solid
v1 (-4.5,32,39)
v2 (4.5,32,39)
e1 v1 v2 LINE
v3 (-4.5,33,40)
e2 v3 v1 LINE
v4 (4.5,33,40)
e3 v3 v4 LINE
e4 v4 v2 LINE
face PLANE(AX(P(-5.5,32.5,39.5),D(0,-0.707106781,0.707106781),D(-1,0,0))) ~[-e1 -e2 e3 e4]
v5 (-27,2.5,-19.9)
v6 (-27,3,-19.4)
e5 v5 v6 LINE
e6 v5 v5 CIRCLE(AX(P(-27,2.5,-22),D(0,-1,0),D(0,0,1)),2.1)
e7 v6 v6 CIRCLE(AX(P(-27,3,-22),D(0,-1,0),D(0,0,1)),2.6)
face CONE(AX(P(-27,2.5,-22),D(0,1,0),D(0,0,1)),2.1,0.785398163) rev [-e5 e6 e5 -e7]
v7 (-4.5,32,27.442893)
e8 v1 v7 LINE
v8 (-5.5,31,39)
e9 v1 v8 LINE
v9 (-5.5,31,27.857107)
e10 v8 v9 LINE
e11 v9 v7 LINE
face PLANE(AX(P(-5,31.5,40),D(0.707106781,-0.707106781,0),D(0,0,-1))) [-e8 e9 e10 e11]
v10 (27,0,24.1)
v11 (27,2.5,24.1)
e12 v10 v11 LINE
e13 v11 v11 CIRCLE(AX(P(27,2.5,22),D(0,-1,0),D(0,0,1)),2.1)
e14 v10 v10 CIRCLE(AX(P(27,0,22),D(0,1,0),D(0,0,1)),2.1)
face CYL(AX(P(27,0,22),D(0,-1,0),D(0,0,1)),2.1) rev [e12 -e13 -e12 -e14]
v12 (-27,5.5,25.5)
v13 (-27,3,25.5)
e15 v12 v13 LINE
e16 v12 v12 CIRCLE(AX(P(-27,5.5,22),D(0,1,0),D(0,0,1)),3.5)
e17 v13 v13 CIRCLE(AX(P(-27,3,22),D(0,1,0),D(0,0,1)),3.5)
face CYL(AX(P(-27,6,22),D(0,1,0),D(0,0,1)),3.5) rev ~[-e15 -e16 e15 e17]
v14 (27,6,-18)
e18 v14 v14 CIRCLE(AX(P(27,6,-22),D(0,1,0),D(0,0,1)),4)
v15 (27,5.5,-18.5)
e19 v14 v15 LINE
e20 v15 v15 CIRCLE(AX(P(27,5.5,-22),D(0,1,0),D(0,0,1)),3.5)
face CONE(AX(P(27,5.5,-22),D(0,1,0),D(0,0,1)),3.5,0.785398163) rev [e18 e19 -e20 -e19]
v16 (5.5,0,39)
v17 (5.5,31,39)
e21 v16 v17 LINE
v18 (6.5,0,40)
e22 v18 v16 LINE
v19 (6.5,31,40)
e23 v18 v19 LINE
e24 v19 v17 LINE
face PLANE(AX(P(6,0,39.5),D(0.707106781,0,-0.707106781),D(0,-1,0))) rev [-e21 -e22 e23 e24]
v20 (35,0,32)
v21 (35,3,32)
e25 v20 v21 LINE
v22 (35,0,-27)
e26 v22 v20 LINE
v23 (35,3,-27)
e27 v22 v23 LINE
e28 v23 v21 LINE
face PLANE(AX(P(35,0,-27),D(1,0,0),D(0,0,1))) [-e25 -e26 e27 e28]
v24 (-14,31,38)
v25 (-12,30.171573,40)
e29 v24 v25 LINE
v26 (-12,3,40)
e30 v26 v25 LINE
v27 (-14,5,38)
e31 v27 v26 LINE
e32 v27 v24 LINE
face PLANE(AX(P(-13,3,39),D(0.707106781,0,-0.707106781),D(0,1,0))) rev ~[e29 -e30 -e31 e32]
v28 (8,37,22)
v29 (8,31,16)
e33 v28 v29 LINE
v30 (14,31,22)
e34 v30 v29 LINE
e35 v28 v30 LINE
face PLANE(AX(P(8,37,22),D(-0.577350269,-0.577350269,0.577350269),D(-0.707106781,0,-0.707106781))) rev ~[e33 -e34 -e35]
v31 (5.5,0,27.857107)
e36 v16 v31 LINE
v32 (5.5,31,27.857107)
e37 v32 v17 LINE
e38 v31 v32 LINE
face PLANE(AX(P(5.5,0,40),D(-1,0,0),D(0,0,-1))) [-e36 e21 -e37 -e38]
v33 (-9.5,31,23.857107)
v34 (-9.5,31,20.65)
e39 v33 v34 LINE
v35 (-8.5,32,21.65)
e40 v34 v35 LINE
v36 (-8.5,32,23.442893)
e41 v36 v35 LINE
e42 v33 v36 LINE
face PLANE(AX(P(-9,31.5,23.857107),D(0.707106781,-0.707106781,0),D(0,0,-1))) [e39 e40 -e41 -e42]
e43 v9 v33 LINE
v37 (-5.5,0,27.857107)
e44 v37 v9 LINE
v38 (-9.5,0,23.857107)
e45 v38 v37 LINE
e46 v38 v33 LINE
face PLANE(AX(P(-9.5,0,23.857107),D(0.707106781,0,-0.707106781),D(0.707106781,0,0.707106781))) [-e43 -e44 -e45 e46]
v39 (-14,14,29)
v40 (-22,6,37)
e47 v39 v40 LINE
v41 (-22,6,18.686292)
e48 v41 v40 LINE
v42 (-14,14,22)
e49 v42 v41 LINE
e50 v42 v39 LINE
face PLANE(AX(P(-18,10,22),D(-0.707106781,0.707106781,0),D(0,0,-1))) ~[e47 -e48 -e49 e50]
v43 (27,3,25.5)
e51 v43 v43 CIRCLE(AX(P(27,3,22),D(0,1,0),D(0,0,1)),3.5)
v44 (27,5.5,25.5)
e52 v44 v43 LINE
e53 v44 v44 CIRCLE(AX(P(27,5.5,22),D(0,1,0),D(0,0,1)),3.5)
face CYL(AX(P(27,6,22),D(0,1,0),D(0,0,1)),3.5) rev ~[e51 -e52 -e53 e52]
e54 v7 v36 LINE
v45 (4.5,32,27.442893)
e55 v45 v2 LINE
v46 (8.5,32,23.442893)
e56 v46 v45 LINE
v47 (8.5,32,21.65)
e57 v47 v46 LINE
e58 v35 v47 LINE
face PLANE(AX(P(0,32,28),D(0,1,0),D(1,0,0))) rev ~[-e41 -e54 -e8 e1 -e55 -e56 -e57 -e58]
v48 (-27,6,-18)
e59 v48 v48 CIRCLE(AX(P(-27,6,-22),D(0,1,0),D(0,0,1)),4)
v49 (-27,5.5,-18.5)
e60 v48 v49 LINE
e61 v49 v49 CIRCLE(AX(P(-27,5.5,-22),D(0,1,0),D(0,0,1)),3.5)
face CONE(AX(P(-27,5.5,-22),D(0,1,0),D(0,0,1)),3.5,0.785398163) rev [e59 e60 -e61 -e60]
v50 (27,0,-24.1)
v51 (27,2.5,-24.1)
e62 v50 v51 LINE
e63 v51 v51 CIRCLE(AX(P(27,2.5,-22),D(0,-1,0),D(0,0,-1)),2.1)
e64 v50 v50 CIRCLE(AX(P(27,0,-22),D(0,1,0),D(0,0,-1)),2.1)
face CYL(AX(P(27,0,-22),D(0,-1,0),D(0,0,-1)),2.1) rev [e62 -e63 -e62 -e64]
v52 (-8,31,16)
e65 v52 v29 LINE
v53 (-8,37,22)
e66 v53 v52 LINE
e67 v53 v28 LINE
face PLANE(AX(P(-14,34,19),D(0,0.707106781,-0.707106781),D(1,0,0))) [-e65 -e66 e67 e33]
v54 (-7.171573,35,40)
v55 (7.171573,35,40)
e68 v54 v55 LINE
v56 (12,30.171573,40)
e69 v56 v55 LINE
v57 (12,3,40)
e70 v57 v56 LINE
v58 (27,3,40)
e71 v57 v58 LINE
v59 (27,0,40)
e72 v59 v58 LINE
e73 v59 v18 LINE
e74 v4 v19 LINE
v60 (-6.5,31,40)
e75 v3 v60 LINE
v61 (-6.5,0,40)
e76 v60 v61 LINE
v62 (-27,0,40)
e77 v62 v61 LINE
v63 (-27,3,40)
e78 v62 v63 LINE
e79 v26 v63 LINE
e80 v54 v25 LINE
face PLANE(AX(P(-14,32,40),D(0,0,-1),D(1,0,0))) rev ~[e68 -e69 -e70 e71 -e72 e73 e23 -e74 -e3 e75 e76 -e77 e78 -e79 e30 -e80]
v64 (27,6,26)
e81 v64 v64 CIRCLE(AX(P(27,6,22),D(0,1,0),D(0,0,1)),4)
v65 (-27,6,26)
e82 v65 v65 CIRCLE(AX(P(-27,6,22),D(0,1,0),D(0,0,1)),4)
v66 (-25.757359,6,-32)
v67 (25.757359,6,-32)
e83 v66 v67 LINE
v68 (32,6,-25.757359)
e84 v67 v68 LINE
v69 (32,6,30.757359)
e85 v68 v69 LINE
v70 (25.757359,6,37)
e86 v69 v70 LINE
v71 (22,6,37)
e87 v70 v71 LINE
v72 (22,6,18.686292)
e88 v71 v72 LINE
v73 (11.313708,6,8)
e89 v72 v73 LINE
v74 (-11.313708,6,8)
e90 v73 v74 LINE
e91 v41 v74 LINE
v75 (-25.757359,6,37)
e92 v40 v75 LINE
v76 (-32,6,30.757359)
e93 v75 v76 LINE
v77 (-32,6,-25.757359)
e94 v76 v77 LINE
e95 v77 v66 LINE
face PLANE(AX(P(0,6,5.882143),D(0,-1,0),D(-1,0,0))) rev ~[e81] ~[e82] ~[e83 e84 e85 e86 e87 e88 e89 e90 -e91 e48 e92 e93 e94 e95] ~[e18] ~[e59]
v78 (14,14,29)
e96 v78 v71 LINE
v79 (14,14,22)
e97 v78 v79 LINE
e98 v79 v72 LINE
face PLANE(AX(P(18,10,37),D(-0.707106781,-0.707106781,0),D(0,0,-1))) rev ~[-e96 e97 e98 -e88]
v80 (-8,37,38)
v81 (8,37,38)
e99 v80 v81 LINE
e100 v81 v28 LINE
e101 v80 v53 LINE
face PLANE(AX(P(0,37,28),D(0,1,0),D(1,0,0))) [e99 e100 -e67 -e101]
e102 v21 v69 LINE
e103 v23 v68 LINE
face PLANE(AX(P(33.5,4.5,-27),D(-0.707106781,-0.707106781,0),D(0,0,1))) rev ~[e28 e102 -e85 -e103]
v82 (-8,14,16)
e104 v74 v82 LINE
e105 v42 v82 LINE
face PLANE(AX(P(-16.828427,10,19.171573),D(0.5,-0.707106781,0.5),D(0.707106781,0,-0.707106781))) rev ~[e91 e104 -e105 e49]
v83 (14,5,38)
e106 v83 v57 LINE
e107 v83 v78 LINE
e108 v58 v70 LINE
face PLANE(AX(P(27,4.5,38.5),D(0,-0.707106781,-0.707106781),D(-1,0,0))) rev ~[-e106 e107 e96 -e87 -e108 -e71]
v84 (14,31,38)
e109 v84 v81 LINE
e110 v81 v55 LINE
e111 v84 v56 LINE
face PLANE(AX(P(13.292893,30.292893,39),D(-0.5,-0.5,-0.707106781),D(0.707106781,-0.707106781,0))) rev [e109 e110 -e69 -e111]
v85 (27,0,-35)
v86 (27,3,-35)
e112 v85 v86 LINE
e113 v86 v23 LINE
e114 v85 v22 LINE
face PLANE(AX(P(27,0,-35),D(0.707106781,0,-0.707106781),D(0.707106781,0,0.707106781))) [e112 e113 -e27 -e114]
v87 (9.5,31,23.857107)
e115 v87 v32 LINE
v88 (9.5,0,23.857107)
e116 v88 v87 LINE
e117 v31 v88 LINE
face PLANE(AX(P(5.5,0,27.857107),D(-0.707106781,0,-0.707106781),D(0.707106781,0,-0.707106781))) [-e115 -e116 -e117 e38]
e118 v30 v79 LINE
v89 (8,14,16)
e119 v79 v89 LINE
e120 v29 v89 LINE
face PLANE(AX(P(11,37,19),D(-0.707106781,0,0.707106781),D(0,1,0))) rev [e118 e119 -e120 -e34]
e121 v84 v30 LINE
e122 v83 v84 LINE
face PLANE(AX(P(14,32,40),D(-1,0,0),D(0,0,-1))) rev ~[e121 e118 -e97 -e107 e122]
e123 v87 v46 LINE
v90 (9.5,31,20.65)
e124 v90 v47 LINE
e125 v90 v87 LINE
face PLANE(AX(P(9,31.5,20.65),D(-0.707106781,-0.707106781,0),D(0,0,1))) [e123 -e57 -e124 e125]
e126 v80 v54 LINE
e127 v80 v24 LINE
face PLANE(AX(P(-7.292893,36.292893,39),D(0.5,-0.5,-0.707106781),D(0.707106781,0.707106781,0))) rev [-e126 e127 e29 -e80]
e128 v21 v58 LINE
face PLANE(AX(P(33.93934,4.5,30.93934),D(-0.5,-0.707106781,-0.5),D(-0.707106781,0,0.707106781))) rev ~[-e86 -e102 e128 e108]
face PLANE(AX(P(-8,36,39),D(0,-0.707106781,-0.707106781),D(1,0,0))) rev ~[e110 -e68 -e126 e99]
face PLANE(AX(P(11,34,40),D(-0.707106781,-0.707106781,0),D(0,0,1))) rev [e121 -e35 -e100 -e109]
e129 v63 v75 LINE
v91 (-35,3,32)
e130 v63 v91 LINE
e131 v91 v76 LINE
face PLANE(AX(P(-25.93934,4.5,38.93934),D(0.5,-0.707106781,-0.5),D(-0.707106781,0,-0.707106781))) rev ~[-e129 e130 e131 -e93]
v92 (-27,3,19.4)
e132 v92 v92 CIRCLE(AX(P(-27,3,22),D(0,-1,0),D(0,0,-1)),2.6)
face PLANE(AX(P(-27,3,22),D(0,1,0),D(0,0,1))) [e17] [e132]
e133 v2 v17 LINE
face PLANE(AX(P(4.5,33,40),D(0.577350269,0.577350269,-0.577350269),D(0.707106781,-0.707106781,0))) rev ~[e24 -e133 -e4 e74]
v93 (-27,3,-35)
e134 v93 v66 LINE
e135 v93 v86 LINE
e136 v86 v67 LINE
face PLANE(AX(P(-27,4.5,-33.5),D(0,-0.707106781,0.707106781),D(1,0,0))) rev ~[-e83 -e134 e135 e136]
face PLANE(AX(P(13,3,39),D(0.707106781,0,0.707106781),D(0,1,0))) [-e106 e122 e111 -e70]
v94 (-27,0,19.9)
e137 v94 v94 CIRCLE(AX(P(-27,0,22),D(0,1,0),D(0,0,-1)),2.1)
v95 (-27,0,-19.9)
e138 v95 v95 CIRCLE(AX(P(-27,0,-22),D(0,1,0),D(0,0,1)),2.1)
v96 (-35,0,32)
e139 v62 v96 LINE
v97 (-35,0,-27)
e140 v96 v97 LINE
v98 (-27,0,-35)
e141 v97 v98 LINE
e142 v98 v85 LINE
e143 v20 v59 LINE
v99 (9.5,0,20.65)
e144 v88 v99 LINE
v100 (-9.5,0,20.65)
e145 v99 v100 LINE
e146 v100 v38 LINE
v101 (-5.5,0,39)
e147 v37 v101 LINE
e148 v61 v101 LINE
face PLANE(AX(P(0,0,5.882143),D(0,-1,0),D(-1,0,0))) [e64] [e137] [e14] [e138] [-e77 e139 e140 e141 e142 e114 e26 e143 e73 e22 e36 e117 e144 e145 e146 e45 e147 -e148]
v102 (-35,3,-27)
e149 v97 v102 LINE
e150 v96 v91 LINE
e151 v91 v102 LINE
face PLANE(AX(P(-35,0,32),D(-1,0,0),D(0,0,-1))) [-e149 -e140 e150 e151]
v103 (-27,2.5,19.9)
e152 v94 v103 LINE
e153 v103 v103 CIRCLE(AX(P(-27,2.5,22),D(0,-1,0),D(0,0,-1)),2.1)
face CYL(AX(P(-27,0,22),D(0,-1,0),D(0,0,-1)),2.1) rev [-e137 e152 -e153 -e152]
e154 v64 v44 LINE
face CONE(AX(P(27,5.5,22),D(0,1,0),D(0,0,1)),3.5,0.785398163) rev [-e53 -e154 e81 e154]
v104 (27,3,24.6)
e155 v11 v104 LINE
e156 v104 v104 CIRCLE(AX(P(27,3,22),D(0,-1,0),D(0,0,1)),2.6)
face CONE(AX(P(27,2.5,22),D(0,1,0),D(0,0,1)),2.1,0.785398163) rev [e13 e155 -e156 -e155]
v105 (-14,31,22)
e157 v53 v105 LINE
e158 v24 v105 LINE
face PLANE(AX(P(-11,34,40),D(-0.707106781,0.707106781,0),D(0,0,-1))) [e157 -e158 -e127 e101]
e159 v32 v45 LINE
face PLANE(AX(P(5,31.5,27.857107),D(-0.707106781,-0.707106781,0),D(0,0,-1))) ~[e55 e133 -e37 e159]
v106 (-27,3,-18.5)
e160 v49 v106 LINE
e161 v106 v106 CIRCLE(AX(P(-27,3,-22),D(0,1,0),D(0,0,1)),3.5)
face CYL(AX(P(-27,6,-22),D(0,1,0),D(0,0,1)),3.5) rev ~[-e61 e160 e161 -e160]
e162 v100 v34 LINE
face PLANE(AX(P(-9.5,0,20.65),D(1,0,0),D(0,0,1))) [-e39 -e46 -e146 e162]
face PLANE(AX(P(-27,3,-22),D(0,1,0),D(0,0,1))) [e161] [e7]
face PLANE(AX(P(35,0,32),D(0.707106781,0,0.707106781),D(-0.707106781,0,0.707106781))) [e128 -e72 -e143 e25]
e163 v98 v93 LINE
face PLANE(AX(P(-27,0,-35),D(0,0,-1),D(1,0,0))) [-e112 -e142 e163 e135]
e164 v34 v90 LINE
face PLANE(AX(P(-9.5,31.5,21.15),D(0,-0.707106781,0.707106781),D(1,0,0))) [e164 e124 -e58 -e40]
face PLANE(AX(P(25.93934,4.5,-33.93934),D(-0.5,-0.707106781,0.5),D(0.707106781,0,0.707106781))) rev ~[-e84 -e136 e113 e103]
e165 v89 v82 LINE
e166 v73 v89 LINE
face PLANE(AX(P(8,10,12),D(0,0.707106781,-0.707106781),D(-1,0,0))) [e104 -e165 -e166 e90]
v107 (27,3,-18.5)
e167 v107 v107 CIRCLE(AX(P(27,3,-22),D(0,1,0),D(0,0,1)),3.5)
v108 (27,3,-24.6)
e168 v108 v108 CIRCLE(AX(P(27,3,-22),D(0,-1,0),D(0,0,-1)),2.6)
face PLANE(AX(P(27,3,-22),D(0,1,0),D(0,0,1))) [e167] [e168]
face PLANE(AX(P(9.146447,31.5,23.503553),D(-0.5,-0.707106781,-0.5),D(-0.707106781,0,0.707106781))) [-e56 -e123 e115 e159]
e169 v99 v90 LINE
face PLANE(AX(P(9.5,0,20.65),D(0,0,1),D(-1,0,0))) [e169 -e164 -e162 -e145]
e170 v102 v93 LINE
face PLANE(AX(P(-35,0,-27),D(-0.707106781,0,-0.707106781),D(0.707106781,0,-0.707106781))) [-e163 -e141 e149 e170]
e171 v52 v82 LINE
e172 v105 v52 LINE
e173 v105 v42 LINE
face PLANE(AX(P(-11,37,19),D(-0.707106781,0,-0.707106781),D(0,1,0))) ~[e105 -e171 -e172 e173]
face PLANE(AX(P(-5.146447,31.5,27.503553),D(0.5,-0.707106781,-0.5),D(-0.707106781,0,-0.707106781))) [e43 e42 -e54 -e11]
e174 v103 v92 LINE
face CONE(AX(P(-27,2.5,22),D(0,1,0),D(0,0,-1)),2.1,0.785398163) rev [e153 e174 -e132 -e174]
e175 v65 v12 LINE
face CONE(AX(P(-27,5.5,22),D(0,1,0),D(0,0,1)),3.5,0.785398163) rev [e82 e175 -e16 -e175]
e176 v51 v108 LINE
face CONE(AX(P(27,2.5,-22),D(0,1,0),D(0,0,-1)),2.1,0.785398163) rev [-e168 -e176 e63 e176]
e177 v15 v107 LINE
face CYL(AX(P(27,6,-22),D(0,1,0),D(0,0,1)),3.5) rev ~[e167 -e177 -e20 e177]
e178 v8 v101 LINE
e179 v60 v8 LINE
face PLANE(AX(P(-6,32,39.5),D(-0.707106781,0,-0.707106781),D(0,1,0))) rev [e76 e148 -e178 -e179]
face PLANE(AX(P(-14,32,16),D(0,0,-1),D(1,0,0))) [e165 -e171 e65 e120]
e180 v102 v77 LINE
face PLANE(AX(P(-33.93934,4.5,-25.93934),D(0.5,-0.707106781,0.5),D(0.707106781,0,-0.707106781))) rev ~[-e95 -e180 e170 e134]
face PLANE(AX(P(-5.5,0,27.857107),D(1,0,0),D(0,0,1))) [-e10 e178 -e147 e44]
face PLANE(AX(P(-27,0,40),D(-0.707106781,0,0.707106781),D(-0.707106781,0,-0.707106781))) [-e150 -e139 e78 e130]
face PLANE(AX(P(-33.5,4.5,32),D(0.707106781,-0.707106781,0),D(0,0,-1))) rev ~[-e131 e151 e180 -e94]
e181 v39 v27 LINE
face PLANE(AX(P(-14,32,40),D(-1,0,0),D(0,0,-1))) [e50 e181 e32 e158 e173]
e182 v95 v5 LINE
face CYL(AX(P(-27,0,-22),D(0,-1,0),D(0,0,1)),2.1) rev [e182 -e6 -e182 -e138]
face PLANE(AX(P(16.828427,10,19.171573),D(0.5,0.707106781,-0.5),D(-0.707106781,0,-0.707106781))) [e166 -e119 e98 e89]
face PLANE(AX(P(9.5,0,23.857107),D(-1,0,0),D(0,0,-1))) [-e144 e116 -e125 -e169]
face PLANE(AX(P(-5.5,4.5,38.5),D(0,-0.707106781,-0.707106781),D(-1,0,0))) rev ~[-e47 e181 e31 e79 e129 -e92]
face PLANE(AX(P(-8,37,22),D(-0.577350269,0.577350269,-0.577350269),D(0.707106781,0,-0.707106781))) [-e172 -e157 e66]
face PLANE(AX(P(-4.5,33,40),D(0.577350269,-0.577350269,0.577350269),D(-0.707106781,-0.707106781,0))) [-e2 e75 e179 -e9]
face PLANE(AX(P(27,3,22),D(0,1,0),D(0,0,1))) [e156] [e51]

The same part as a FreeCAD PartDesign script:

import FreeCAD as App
import Part
import Sketcher


def edges_at(feature, points):
    """Names of the edges that pass closest to the given points."""
    edges = feature.Shape.Edges
    near = lambda p: min(range(len(edges)), key=lambda i: edges[i].distToShape(Part.Vertex(*p))[0])
    return sorted({f"Edge{near(p) + 1}" for p in points})


def add_polygon(sketch, points):
    """Adds a closed chain of lines whose ends are joined by coincident constraints."""
    first, n = sketch.GeometryCount, len(points)
    for a, b in zip(points, points[1:] + points[:1]):
        sketch.addGeometry(Part.LineSegment(App.Vector(*a, 0), App.Vector(*b, 0)), False)
    for i in range(n):
        sketch.addConstraint(Sketcher.Constraint("Coincident", first + i, 2, first + (i + 1) % n, 1))

doc = App.newDocument("Part")
body = doc.addObject("PartDesign::Body", "Body")

sketch1 = body.newObject("Sketcher::SketchObject", "Sketch")
sketch1.AttachmentSupport = (doc.getObject("XZ_Plane"), [""])
sketch1.MapMode = "FlatFace"
add_polygon(sketch1, [(-27, -35), (-35, -27), (-35, 32), (-27, 40), (-5.5, 40), (-5.5, 27.857107), (-9.5, 23.857107), (-9.5, 20.65), (9.5, 20.65), (9.5, 23.857107), (5.5, 27.857107), (5.5, 40), (27, 40), (35, 32), (35, -27), (27, -35)])
sketch1.addGeometry(Part.Circle(App.Vector(27, 22, 0), App.Vector(0, 0, 1), 2.1), False)
sketch1.addGeometry(Part.Circle(App.Vector(-27, 22, 0), App.Vector(0, 0, 1), 2.1), False)
sketch1.addGeometry(Part.Circle(App.Vector(27, -22, 0), App.Vector(0, 0, 1), 2.1), False)
sketch1.addGeometry(Part.Circle(App.Vector(-27, -22, 0), App.Vector(0, 0, 1), 2.1), False)
sketch1.addConstraint([
    Sketcher.Constraint("Vertical", 1),
    Sketcher.Constraint("Horizontal", 3),
    Sketcher.Constraint("Vertical", 4),
    Sketcher.Constraint("Vertical", 6),
    Sketcher.Constraint("Horizontal", 7),
    Sketcher.Constraint("Vertical", 8),
    Sketcher.Constraint("Vertical", 10),
    Sketcher.Constraint("Horizontal", 11),
    Sketcher.Constraint("Vertical", 13),
    Sketcher.Constraint("Horizontal", 15),
    Sketcher.Constraint("Equal", 16, 17),
    Sketcher.Constraint("Equal", 17, 18),
    Sketcher.Constraint("Equal", 18, 19),
    Sketcher.Constraint("Symmetric", 17, 3, 18, 3, -1, 1),
    Sketcher.Constraint("Symmetric", 16, 3, 19, 3, -1, 1),
    Sketcher.Constraint("Symmetric", 16, 3, 17, 3, -2),
    Sketcher.Constraint("Symmetric", 5, 2, 8, 2, -2),
    Sketcher.Constraint("Symmetric", 4, 2, 9, 2, -2),
    Sketcher.Constraint("Symmetric", 2, 2, 11, 2, -2),
    Sketcher.Constraint("Symmetric", 1, 2, 12, 2, -2),
    Sketcher.Constraint("Perpendicular", 0, 2),
    Sketcher.Constraint("Parallel", 2, 5),
    Sketcher.Constraint("Perpendicular", 5, 9),
    Sketcher.Constraint("Perpendicular", 12, 14),
    Sketcher.Constraint("Horizontal", 0, 2, 13, 2),
    Sketcher.Constraint("Vertical", 19, 3, 2, 2),
    Sketcher.Constraint("Vertical", 11, 2, 14, 2),
    Sketcher.Constraint("Diameter", 16, 4.2),
    Sketcher.Constraint("DistanceX", 7, 1, 7, 2, 19.0),
    Sketcher.Constraint("DistanceX", 15, 2, 15, 1, 54.0),
    Sketcher.Constraint("DistanceY", 1, 1, 1, 2, 59.0),
    Sketcher.Constraint("DistanceX", 3, 1, 3, 2, 21.5),
    Sketcher.Constraint("DistanceY", -1, 1, 16, 3, 22.0),
    Sketcher.Constraint("DistanceX", 0, 2, -1, 1, 35.0),
    Sketcher.Constraint("DistanceY", 0, 2, -1, 1, 27.0),
    Sketcher.Constraint("DistanceY", -1, 1, 6, 2, 20.65),
    Sketcher.Constraint("DistanceY", 4, 2, 4, 1, 12.142893),
])
pad1 = body.newObject("PartDesign::Pad", "Pad")
pad1.Profile = sketch1
pad1.Length = 6
pad1.Reversed = True
doc.recompute()

chamfer = body.newObject("PartDesign::Chamfer", "Chamfer")
chamfer.Base = (pad1, edges_at(pad1, [
    (-31, 6, -31),
    (-35, 6, 2.5),
    (-31, 6, 36),
    (-16.25, 6, 40),
    (31, 6, -31),
    (16.25, 6, 40),
    (31, 6, 36),
    (35, 6, 2.5),
    (0, 6, -35),
]))
chamfer.Size = 3

sketch2 = body.newObject("Sketcher::SketchObject", "Sketch001")
sketch2.AttachmentSupport = (doc.getObject("XZ_Plane"), [""])
sketch2.MapMode = "FlatFace"
sketch2.AttachmentOffset = App.Placement(App.Vector(0, 0, -6), App.Rotation())
sketch2.addGeometry([
    Part.Circle(App.Vector(-27, -22, 0), App.Vector(0, 0, 1), 3.5),
    Part.Circle(App.Vector(-27, 22, 0), App.Vector(0, 0, 1), 3.5),
    Part.Circle(App.Vector(27, 22, 0), App.Vector(0, 0, 1), 3.5),
    Part.Circle(App.Vector(27, -22, 0), App.Vector(0, 0, 1), 3.5),
], False)
sketch2.addConstraint([
    Sketcher.Constraint("Equal", 0, 1),
    Sketcher.Constraint("Equal", 1, 2),
    Sketcher.Constraint("Equal", 2, 3),
    Sketcher.Constraint("Symmetric", 0, 3, 2, 3, -1, 1),
    Sketcher.Constraint("Symmetric", 1, 3, 3, 3, -1, 1),
    Sketcher.Constraint("Symmetric", 1, 3, 2, 3, -2),
    Sketcher.Constraint("Diameter", 0, 7.0),
    Sketcher.Constraint("DistanceX", 0, 3, -1, 1, 27.0),
    Sketcher.Constraint("DistanceY", 0, 3, -1, 1, 22.0),
])
pocket1 = body.newObject("PartDesign::Pocket", "Pocket")
pocket1.Profile = sketch2
pocket1.Length = 3
pocket1.Reversed = True
doc.recompute()

chamfer2 = body.newObject("PartDesign::Chamfer", "Chamfer001")
chamfer2.Base = (pocket1, edges_at(pocket1, [
    (27, 3, -19.9),
    (27, 6, -25.5),
    (27, 3, 19.9),
    (27, 6, 18.5),
    (-27, 3, 24.1),
    (-27, 6, 18.5),
    (-27, 3, -24.1),
    (-27, 6, -25.5),
]))
chamfer2.Size = 0.5

sketch3 = body.newObject("Sketcher::SketchObject", "Sketch002")
sketch3.AttachmentSupport = (doc.getObject("XZ_Plane"), [""])
sketch3.MapMode = "FlatFace"
add_polygon(sketch3, [(5.5, 27.857107), (5.5, 40), (14, 40), (14, 16), (-14, 16), (-14, 40), (-5.5, 40), (-5.5, 27.857107), (-9.5, 23.857107), (-9.5, 20.65), (9.5, 20.65), (9.5, 23.857107)])
sketch3.addConstraint([
    Sketcher.Constraint("Vertical", 0),
    Sketcher.Constraint("Horizontal", 1),
    Sketcher.Constraint("Vertical", 2),
    Sketcher.Constraint("Horizontal", 3),
    Sketcher.Constraint("Vertical", 4),
    Sketcher.Constraint("Horizontal", 5),
    Sketcher.Constraint("Vertical", 6),
    Sketcher.Constraint("Vertical", 8),
    Sketcher.Constraint("Horizontal", 9),
    Sketcher.Constraint("Vertical", 10),
    Sketcher.Constraint("Symmetric", 1, 2, 4, 2, -2),
    Sketcher.Constraint("Symmetric", 7, 2, 10, 2, -2),
    Sketcher.Constraint("Symmetric", 6, 2, 11, 2, -2),
    Sketcher.Constraint("Perpendicular", 7, 11),
    Sketcher.Constraint("DistanceX", 3, 2, 3, 1, 28.0),
    Sketcher.Constraint("DistanceX", 9, 1, 9, 2, 19.0),
    Sketcher.Constraint("DistanceY", 2, 2, 2, 1, 24.0),
    Sketcher.Constraint("DistanceX", 1, 1, 1, 2, 8.5),
    Sketcher.Constraint("DistanceY", -1, 1, 0, 2, 40.0),
    Sketcher.Constraint("DistanceY", -1, 1, 8, 2, 20.65),
    Sketcher.Constraint("DistanceY", 0, 1, 0, 2, 12.142893),
])
pad2 = body.newObject("PartDesign::Pad", "Pad001")
pad2.Profile = sketch3
pad2.Length = 32
pad2.Reversed = True

sketch4 = body.newObject("Sketcher::SketchObject", "Sketch003")
sketch4.AttachmentSupport = (doc.getObject("XZ_Plane"), [""])
sketch4.MapMode = "FlatFace"
sketch4.AttachmentOffset = App.Placement(App.Vector(0, 0, -32), App.Rotation())
add_polygon(sketch4, [(-14, 16), (-14, 40), (14, 40), (14, 16)])
sketch4.addConstraint([
    Sketcher.Constraint("Vertical", 0),
    Sketcher.Constraint("Horizontal", 1),
    Sketcher.Constraint("Vertical", 2),
    Sketcher.Constraint("Horizontal", 3),
    Sketcher.Constraint("DistanceX", 1, 1, 1, 2, 28.0),
    Sketcher.Constraint("DistanceY", 0, 1, 0, 2, 24.0),
    Sketcher.Constraint("DistanceX", 0, 2, -1, 1, 14.0),
    Sketcher.Constraint("DistanceY", -1, 1, 0, 2, 40.0),
])
pad3 = body.newObject("PartDesign::Pad", "Pad002")
pad3.Profile = sketch4
pad3.Length = 5
pad3.Reversed = True
doc.recompute()

chamfer3 = body.newObject("PartDesign::Chamfer", "Chamfer002")
chamfer3.Base = (pad3, edges_at(pad3, [
    (9.5, 32, 22.254),
    (7.5, 32, 25.857),
    (5.5, 32, 33.929),
    (-5.5, 32, 33.929),
    (-7.5, 32, 25.857),
    (-9.5, 32, 22.254),
    (0, 32, 20.65),
    (0, 32, 40),
    (-5.5, 16, 40),
    (5.5, 16, 40),
]))
chamfer3.Size = 1
doc.recompute()

chamfer4 = body.newObject("PartDesign::Chamfer", "Chamfer003")
chamfer4.Base = (chamfer3, edges_at(chamfer3, [
    (14, 21.5, 16),
    (-14, 21.5, 16),
    (-14, 37, 28),
    (14, 37, 28),
    (0, 37, 16),
]))
chamfer4.Size = 6
doc.recompute()

chamfer5 = body.newObject("PartDesign::Chamfer", "Chamfer004")
chamfer5.Base = (chamfer4, edges_at(chamfer4, [
    (-14, 6, 29.5),
    (0, 6, 16),
    (14, 6, 29.5),
    (11, 6, 19),
    (-11, 6, 19),
]))
chamfer5.Size = 8
doc.recompute()

chamfer6 = body.newObject("PartDesign::Chamfer", "Chamfer005")
chamfer6.Base = (chamfer5, edges_at(chamfer5, [
    (14, 17, 40),
    (-14, 17, 40),
    (0, 37, 40),
    (11, 34, 40),
    (-11, 34, 40),
]))
chamfer6.Size = 2

doc.recompute()
